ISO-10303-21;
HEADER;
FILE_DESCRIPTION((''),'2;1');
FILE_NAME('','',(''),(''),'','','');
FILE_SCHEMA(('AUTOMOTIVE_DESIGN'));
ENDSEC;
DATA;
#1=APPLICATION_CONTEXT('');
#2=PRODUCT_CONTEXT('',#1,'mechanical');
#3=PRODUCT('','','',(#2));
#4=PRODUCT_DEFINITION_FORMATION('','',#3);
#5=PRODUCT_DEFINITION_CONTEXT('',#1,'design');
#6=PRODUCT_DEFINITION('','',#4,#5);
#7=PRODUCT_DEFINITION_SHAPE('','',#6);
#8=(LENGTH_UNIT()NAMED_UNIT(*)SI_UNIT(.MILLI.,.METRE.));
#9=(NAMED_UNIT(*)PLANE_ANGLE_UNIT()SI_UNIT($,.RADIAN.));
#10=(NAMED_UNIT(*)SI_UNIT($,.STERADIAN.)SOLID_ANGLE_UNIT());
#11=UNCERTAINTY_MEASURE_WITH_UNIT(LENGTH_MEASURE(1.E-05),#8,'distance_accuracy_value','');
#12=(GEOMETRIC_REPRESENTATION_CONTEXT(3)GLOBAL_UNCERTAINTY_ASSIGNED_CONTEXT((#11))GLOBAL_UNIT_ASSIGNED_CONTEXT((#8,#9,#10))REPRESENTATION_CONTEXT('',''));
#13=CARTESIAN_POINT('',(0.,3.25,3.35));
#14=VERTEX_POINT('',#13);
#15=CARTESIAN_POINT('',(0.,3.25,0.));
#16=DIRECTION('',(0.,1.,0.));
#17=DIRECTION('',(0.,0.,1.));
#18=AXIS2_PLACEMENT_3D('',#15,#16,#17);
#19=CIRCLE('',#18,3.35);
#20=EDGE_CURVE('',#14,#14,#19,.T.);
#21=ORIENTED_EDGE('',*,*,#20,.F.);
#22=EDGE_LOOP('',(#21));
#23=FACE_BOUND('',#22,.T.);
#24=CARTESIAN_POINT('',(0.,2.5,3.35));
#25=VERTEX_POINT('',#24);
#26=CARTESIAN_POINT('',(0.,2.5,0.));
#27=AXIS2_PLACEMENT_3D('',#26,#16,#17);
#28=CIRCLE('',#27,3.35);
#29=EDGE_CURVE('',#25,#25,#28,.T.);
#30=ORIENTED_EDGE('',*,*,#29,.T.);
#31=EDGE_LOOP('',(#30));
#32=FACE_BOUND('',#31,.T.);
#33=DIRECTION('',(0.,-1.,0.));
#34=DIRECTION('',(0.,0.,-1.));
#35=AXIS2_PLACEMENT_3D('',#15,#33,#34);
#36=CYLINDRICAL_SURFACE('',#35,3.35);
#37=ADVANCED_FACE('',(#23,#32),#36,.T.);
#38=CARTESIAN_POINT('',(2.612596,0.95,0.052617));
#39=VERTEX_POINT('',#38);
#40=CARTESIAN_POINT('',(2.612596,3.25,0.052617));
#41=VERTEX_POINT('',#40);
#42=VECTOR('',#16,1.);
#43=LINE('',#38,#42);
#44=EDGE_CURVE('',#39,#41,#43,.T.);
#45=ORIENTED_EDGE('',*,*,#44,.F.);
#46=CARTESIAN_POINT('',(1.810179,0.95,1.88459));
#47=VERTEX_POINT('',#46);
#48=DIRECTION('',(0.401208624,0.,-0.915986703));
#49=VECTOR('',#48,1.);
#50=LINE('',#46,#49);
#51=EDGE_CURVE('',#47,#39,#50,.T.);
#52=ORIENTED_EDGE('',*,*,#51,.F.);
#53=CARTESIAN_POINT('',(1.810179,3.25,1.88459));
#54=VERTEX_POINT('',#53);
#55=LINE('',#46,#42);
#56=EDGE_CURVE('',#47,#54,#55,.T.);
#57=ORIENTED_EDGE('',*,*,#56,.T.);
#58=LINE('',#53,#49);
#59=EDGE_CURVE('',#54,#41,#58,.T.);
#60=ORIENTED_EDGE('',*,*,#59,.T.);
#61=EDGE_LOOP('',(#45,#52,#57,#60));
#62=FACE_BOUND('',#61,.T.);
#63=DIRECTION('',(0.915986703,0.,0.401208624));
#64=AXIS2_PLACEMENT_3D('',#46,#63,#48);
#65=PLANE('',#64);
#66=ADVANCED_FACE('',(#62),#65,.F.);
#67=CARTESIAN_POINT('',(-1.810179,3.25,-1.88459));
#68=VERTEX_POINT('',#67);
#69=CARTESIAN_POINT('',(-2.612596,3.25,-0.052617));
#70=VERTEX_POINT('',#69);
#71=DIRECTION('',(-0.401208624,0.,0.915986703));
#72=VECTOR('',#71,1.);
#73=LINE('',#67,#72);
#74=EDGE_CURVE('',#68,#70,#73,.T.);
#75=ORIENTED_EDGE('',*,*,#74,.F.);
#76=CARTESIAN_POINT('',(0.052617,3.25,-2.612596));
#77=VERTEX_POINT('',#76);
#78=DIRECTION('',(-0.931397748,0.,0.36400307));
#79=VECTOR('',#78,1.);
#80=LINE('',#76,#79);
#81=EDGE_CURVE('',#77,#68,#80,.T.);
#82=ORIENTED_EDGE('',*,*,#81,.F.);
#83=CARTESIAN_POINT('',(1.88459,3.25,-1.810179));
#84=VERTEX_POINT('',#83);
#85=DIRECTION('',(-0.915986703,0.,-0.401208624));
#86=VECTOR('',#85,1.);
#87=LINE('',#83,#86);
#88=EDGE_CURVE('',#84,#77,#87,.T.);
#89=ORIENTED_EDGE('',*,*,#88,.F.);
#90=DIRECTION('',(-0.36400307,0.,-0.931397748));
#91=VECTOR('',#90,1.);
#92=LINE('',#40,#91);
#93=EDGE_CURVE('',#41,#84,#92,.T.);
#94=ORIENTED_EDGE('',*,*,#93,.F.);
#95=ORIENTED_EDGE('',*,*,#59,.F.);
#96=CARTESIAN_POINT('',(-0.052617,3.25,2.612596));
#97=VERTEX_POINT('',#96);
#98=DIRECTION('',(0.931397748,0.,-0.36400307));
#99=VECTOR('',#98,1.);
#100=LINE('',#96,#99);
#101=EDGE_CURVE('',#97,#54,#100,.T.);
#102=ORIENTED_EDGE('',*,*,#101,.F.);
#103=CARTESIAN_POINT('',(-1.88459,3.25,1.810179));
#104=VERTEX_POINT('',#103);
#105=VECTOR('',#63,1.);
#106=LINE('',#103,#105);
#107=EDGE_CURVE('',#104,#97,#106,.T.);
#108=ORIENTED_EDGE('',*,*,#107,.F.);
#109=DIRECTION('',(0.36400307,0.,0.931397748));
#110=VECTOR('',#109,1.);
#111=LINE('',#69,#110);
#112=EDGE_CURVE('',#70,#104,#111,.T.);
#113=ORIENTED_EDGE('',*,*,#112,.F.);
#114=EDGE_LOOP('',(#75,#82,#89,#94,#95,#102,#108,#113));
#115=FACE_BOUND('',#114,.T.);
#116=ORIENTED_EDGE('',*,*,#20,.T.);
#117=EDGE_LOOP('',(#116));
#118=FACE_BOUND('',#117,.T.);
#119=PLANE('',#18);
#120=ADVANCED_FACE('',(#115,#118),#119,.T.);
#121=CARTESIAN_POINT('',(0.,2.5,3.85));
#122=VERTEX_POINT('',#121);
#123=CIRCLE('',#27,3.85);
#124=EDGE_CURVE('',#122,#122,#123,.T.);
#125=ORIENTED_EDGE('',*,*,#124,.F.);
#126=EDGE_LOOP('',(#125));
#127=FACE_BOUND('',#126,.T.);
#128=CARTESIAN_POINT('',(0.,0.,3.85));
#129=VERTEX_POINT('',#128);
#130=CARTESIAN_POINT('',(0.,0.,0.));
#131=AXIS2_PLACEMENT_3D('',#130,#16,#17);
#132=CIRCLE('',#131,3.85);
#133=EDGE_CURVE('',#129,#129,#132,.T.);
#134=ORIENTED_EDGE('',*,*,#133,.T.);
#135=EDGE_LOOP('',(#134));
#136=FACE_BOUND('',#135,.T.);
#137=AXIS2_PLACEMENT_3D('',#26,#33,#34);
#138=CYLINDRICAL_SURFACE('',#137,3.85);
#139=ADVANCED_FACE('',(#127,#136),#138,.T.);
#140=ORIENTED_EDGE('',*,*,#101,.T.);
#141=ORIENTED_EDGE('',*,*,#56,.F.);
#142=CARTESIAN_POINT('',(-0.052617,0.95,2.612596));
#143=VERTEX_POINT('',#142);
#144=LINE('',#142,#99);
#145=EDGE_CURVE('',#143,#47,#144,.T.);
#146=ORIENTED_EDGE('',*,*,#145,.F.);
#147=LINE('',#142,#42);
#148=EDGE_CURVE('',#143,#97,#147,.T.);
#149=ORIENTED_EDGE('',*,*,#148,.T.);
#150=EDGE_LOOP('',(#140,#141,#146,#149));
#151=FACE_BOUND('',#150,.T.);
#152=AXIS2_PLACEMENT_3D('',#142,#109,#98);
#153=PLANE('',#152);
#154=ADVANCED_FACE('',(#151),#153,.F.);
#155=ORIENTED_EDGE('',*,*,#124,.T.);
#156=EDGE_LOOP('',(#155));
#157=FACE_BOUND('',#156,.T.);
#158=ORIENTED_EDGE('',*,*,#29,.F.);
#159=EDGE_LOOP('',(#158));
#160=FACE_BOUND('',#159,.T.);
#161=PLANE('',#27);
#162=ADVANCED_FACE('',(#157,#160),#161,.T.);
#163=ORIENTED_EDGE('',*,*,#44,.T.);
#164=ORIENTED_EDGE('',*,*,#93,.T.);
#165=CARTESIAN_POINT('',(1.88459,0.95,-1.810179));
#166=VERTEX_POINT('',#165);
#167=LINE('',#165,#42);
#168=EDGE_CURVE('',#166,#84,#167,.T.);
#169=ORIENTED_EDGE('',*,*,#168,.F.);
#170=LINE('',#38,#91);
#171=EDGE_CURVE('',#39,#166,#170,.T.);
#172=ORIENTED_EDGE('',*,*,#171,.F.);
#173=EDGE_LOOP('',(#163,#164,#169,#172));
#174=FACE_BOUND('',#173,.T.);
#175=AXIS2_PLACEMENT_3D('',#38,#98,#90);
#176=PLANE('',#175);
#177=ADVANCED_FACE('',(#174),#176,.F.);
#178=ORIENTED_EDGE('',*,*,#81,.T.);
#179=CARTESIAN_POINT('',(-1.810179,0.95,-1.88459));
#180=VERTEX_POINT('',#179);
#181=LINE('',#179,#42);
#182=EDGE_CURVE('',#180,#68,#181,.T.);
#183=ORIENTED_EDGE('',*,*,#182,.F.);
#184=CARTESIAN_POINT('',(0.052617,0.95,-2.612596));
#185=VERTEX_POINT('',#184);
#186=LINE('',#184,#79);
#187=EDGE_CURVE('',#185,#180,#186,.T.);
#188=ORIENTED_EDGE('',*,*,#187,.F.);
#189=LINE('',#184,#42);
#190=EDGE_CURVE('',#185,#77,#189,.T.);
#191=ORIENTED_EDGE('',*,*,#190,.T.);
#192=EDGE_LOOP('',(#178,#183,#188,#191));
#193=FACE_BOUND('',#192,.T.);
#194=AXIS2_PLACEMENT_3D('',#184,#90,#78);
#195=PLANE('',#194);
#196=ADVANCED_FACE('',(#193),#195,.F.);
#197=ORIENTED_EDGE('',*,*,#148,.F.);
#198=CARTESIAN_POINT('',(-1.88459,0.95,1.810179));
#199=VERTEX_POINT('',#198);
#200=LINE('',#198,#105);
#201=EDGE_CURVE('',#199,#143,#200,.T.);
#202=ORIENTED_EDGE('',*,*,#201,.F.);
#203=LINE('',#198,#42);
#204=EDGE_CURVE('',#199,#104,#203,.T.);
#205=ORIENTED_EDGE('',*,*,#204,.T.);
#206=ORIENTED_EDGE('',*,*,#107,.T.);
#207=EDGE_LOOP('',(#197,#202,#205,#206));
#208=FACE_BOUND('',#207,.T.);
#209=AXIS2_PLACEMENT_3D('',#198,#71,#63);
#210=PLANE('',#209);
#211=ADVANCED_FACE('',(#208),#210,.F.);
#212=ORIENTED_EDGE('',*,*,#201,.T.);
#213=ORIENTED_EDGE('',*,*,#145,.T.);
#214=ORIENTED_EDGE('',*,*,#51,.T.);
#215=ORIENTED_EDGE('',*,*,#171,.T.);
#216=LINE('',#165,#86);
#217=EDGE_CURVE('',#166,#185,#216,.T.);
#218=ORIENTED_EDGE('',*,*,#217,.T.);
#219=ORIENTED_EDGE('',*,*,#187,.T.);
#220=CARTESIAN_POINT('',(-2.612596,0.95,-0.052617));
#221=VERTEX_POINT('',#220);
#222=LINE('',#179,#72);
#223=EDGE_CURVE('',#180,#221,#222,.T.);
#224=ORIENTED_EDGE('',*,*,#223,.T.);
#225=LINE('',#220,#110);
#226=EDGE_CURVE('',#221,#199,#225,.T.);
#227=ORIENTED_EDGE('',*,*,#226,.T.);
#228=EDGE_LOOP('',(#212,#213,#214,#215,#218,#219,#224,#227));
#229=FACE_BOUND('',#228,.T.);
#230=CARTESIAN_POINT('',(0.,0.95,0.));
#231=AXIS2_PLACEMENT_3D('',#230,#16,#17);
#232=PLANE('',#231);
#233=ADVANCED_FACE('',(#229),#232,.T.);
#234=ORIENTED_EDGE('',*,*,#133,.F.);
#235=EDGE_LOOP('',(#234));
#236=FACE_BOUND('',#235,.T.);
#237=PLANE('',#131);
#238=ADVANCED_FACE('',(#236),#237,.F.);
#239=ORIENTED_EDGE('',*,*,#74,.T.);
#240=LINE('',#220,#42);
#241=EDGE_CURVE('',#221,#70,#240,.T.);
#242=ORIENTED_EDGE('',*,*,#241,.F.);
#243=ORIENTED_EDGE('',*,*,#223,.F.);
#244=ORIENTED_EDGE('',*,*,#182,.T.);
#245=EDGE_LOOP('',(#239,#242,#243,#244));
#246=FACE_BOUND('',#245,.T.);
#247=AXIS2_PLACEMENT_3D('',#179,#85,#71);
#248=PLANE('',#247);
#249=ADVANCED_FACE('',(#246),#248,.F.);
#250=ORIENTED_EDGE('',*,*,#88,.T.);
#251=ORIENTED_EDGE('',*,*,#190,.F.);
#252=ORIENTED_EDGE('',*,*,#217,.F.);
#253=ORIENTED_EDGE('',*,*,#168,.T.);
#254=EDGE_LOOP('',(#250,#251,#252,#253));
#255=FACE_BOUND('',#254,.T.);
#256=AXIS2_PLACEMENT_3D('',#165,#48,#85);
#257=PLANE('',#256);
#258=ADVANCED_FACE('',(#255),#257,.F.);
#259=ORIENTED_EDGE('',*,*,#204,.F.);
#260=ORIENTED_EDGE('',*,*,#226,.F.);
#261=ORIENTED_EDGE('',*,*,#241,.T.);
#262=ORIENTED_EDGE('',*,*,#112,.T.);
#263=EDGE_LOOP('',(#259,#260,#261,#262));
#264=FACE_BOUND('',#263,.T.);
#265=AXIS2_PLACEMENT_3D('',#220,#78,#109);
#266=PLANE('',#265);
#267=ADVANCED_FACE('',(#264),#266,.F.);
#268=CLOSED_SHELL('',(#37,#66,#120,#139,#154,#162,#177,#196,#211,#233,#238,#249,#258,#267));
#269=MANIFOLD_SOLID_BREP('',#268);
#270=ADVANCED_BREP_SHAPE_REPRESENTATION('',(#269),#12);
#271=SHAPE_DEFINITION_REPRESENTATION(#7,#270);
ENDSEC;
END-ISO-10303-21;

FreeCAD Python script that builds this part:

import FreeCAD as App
import Part
import Sketcher
Q = App.Units.Quantity


def add_polygon(sketch, points):
    """Adds a closed chain of lines whose ends are joined by coincident constraints."""
    first, n = sketch.GeometryCount, len(points)
    for a, b in zip(points, points[1:] + points[:1]):
        sketch.addGeometry(Part.LineSegment(App.Vector(*a, 0), App.Vector(*b, 0)), False)
    for i in range(n):
        sketch.addConstraint(Sketcher.Constraint("Coincident", first + i, 2, first + (i + 1) % n, 1))

doc = App.newDocument("Part")
body = doc.addObject("PartDesign::Body", "Body")

sketch1 = body.newObject("Sketcher::SketchObject", "Sketch")
sketch1.AttachmentSupport = (doc.getObject("XZ_Plane"), [""])
sketch1.MapMode = "FlatFace"
sketch1.addGeometry(Part.Circle(App.Vector(0, 0, 0), App.Vector(0, 0, 1), 3.9), False)
sketch1.addConstraint([
    Sketcher.Constraint("Coincident", 0, 3, -1, 1),
    Sketcher.Constraint("Diameter", 0, Q("7.7 mm")),
])
pad1 = body.newObject("PartDesign::Pad", "Pad")
pad1.Profile = sketch1
pad1.Length = 2.5
pad1.Reversed = True

sketch2 = body.newObject("Sketcher::SketchObject", "Sketch001")
sketch2.AttachmentSupport = (doc.getObject("XZ_Plane"), [""])
sketch2.MapMode = "FlatFace"
sketch2.AttachmentOffset = App.Placement(App.Vector(0, 0, -2.5), App.Rotation())
sketch2.addGeometry(Part.Circle(App.Vector(0, 0, 0), App.Vector(0, 0, 1), 3.4), False)
sketch2.addConstraint([
    Sketcher.Constraint("Coincident", 0, 3, -1, 1),
    Sketcher.Constraint("Diameter", 0, Q("6.7 mm")),
])
pad2 = body.newObject("PartDesign::Pad", "Pad001")
pad2.Profile = sketch2
pad2.Length = 0.75
pad2.Reversed = True

sketch3 = body.newObject("Sketcher::SketchObject", "Sketch002")
sketch3.AttachmentSupport = (doc.getObject("XZ_Plane"), [""])
sketch3.MapMode = "FlatFace"
sketch3.AttachmentOffset = App.Placement(App.Vector(0, 0, -3.25), App.Rotation())
add_polygon(sketch3, [(-0.1, 2.6), (1.8, 1.9), (2.6, 0.1), (1.9, -1.8), (0.1, -2.6), (-1.8, -1.9), (-2.6, -0.1), (-1.9, 1.8)])
sketch3.addConstraint([
    Sketcher.Constraint("Symmetric", 0, 2, 4, 2, -1, 1),
    Sketcher.Constraint("Symmetric", 1, 2, 5, 2, -1, 1),
    Sketcher.Constraint("Symmetric", 2, 2, 6, 2, -1, 1),
    Sketcher.Constraint("Symmetric", 3, 2, 7, 2, -1, 1),
    Sketcher.Constraint("Perpendicular", 0, 2),
    Sketcher.Constraint("Perpendicular", 1, 3),
    Sketcher.Constraint("Equal", 0, 1),
    Sketcher.Constraint("Equal", 1, 2),
    Sketcher.Constraint("Equal", 2, 3),
    Sketcher.Constraint("Distance", 0, Q("2 mm")),
    Sketcher.Constraint("DistanceX", -1, 1, 0, 2, Q("1.810179 mm")),
    Sketcher.Constraint("DistanceY", -1, 1, 0, 2, Q("1.88459 mm")),
])
pocket1 = body.newObject("PartDesign::Pocket", "Pocket")
pocket1.Profile = sketch3
pocket1.Length = 2.3
pocket1.Reversed = True

doc.recompute()
